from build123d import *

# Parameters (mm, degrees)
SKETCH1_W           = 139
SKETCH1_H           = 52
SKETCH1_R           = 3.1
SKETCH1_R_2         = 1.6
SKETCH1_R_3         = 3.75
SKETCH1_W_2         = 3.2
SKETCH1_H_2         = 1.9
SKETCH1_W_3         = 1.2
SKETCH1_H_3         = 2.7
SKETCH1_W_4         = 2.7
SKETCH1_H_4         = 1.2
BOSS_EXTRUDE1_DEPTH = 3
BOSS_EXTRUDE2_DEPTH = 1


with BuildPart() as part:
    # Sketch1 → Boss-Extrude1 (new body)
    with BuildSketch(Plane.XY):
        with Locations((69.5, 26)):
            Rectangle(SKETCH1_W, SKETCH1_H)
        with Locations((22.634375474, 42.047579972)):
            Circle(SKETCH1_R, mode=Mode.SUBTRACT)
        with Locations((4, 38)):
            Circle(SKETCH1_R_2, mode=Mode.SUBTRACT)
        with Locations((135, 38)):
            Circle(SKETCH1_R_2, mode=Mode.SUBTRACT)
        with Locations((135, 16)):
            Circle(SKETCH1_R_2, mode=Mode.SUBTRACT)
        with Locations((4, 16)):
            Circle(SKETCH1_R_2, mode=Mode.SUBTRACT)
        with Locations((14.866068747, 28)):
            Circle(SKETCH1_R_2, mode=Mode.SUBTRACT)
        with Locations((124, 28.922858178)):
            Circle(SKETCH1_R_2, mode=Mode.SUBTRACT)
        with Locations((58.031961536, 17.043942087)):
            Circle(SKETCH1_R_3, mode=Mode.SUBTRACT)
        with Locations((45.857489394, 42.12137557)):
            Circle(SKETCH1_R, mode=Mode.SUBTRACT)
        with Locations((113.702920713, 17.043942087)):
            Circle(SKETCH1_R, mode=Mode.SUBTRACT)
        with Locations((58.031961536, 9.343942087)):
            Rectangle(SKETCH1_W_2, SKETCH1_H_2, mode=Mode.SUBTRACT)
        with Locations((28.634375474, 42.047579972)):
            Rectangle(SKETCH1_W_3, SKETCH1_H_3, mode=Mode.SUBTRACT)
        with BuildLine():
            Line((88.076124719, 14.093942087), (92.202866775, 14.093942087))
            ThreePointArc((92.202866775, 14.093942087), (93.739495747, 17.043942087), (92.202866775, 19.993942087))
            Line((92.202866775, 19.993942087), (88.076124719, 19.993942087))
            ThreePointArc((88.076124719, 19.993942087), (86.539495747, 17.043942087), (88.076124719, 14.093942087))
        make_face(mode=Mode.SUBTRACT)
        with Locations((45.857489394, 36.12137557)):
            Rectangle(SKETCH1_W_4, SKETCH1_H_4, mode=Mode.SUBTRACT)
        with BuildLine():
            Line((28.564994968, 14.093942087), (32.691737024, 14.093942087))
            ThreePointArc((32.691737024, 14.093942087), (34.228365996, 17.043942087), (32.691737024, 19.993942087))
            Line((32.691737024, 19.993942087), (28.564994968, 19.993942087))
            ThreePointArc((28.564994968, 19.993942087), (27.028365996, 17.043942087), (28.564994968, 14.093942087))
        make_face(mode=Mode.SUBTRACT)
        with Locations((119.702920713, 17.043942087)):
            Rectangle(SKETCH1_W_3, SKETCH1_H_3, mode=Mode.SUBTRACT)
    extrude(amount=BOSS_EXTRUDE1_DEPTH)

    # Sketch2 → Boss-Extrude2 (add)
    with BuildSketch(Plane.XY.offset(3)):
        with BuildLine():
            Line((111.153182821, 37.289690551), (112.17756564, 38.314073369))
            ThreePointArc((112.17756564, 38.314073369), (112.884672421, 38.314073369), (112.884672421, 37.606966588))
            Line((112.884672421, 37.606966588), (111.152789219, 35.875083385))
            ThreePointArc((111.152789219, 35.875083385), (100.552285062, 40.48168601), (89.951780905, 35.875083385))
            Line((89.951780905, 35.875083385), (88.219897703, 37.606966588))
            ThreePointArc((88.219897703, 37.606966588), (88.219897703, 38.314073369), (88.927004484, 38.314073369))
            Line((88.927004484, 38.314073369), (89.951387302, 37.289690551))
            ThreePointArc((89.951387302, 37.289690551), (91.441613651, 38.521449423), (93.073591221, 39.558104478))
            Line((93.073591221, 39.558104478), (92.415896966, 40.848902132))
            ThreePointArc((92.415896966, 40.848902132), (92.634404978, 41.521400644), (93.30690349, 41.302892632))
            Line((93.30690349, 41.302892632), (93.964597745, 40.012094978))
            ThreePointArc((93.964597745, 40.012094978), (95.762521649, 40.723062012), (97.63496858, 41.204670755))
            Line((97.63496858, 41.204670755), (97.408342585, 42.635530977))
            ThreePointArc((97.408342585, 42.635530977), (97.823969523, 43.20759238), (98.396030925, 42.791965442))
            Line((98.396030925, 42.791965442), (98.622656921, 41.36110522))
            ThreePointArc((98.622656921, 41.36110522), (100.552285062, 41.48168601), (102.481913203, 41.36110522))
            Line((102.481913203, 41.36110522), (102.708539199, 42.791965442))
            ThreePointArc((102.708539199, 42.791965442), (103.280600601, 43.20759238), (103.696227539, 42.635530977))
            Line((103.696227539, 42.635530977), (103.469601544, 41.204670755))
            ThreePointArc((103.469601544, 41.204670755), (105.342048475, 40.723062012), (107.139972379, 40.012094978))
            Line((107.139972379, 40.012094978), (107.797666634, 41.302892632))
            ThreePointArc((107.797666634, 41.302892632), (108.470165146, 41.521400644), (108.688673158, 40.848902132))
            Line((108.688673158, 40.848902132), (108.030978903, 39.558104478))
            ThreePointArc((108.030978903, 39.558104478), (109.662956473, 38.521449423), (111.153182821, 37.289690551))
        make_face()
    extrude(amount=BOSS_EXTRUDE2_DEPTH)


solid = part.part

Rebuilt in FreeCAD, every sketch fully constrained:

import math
import FreeCAD as App
import Part
import Sketcher
Q = App.Units.Quantity


def add_polygon(sketch, points):
    """Adds a closed chain of lines whose ends are joined by coincident constraints."""
    first, n = sketch.GeometryCount, len(points)
    for a, b in zip(points, points[1:] + points[:1]):
        sketch.addGeometry(Part.LineSegment(App.Vector(*a, 0), App.Vector(*b, 0)), False)
    for i in range(n):
        sketch.addConstraint(Sketcher.Constraint("Coincident", first + i, 2, first + (i + 1) % n, 1))

doc = App.newDocument("Part")
body = doc.addObject("PartDesign::Body", "Body")

sketch1 = doc.addObject("Sketcher::SketchObject", "Sketch")
body.addObject(sketch1)
sketch1.AttachmentSupport = (doc.XY_Plane, [""])
sketch1.MapMode = "FlatFace"
add_polygon(sketch1, [(0, 52), (0, 0), (139, 0), (139, 52)])
sketch1.addGeometry(Part.Circle(App.Vector(4, 16, 0), App.Vector(0, 0, 1), 1.6), False)
sketch1.addGeometry(Part.LineSegment(App.Vector(32.7, 14.1, 0), App.Vector(28.6, 14.1, 0)), False)
sketch1.addGeometry(Part.ArcOfCircle(Part.Circle(App.Vector(30.6, 17, 0), App.Vector(0, 0, 1), 3.6), math.radians(125), math.radians(235)), False)
sketch1.addGeometry(Part.LineSegment(App.Vector(28.6, 20, 0), App.Vector(32.7, 20, 0)), False)
sketch1.addGeometry(Part.ArcOfCircle(Part.Circle(App.Vector(30.6, 17, 0), App.Vector(0, 0, 1), 3.6), math.radians(-55), math.radians(55)), False)
add_polygon(sketch1, [(59.6, 8.4), (56.4, 8.4), (56.4, 10.3), (59.6, 10.3)])
sketch1.addGeometry(Part.Circle(App.Vector(58, 17, 0), App.Vector(0, 0, 1), 3.8), False)
sketch1.addGeometry(Part.LineSegment(App.Vector(92.2, 14.1, 0), App.Vector(88.1, 14.1, 0)), False)
sketch1.addGeometry(Part.ArcOfCircle(Part.Circle(App.Vector(90.1, 17, 0), App.Vector(0, 0, 1), 3.6), math.radians(125), math.radians(235)), False)
sketch1.addGeometry(Part.LineSegment(App.Vector(88.1, 20, 0), App.Vector(92.2, 20, 0)), False)
sketch1.addGeometry(Part.ArcOfCircle(Part.Circle(App.Vector(90.1, 17, 0), App.Vector(0, 0, 1), 3.6), math.radians(-55), math.radians(55)), False)
sketch1.addGeometry(Part.Circle(App.Vector(113.7, 17, 0), App.Vector(0, 0, 1), 3.1), False)
add_polygon(sketch1, [(120.3, 15.7), (119.1, 15.7), (119.1, 18.4), (120.3, 18.4)])
sketch1.addGeometry(Part.Circle(App.Vector(135, 16, 0), App.Vector(0, 0, 1), 1.6), False)
sketch1.addGeometry(Part.Circle(App.Vector(14.9, 28, 0), App.Vector(0, 0, 1), 1.6), False)
sketch1.addGeometry(Part.Circle(App.Vector(4, 38, 0), App.Vector(0, 0, 1), 1.6), False)
sketch1.addGeometry(Part.Circle(App.Vector(22.6, 42, 0), App.Vector(0, 0, 1), 3.1), False)
add_polygon(sketch1, [(29.2, 40.7), (28, 40.7), (28, 43.4), (29.2, 43.4)])
add_polygon(sketch1, [(47.2, 35.5), (44.5, 35.5), (44.5, 36.7), (47.2, 36.7)])
sketch1.addGeometry(Part.Circle(App.Vector(45.9, 42.1, 0), App.Vector(0, 0, 1), 3.1), False)
sketch1.addGeometry(Part.Circle(App.Vector(124, 28.9, 0), App.Vector(0, 0, 1), 1.6), False)
sketch1.addGeometry(Part.Circle(App.Vector(135, 38, 0), App.Vector(0, 0, 1), 1.6), False)
sketch1.addConstraint(Sketcher.Constraint("Coincident", 5, 2, 6, 2))
sketch1.addConstraint(Sketcher.Constraint("Coincident", 6, 1, 7, 1))
sketch1.addConstraint(Sketcher.Constraint("Coincident", 7, 2, 8, 2))
sketch1.addConstraint(Sketcher.Constraint("Coincident", 8, 1, 5, 1))
sketch1.addConstraint(Sketcher.Constraint("Coincident", 14, 2, 15, 2))
sketch1.addConstraint(Sketcher.Constraint("Coincident", 15, 1, 16, 1))
sketch1.addConstraint(Sketcher.Constraint("Coincident", 16, 2, 17, 2))
sketch1.addConstraint(Sketcher.Constraint("Coincident", 17, 1, 14, 1))
sketch1.addConstraint(Sketcher.Constraint("Vertical", 0))
sketch1.addConstraint(Sketcher.Constraint("Horizontal", 1))
sketch1.addConstraint(Sketcher.Constraint("Vertical", 2))
sketch1.addConstraint(Sketcher.Constraint("Horizontal", 3))
sketch1.addConstraint(Sketcher.Constraint("Horizontal", 5))
sketch1.addConstraint(Sketcher.Constraint("Horizontal", 7))
sketch1.addConstraint(Sketcher.Constraint("Horizontal", 9))
sketch1.addConstraint(Sketcher.Constraint("Vertical", 10))
sketch1.addConstraint(Sketcher.Constraint("Horizontal", 11))
sketch1.addConstraint(Sketcher.Constraint("Vertical", 12))
sketch1.addConstraint(Sketcher.Constraint("Horizontal", 14))
sketch1.addConstraint(Sketcher.Constraint("Horizontal", 16))
sketch1.addConstraint(Sketcher.Constraint("Horizontal", 19))
sketch1.addConstraint(Sketcher.Constraint("Vertical", 20))
sketch1.addConstraint(Sketcher.Constraint("Horizontal", 21))
sketch1.addConstraint(Sketcher.Constraint("Vertical", 22))
sketch1.addConstraint(Sketcher.Constraint("Horizontal", 27))
sketch1.addConstraint(Sketcher.Constraint("Vertical", 28))
sketch1.addConstraint(Sketcher.Constraint("Horizontal", 29))
sketch1.addConstraint(Sketcher.Constraint("Vertical", 30))
sketch1.addConstraint(Sketcher.Constraint("Horizontal", 31))
sketch1.addConstraint(Sketcher.Constraint("Vertical", 32))
sketch1.addConstraint(Sketcher.Constraint("Horizontal", 33))
sketch1.addConstraint(Sketcher.Constraint("Vertical", 34))
sketch1.addConstraint(Sketcher.Constraint("Coincident", 0, 2, -1, 1))
sketch1.addConstraint(Sketcher.Constraint("Coincident", 8, 3, 6, 3))
sketch1.addConstraint(Sketcher.Constraint("Coincident", 17, 3, 15, 3))
sketch1.addConstraint(Sketcher.Constraint("Equal", 6, 8))
sketch1.addConstraint(Sketcher.Constraint("Equal", 8, 15))
sketch1.addConstraint(Sketcher.Constraint("Equal", 15, 17))
sketch1.addConstraint(Sketcher.Constraint("Equal", 4, 23))
sketch1.addConstraint(Sketcher.Constraint("Equal", 23, 24))
sketch1.addConstraint(Sketcher.Constraint("Equal", 24, 25))
sketch1.addConstraint(Sketcher.Constraint("Equal", 18, 26))
sketch1.addConstraint(Sketcher.Constraint("Equal", 26, 35))
sketch1.addConstraint(Sketcher.Constraint("Equal", 25, 36))
sketch1.addConstraint(Sketcher.Constraint("Equal", 36, 37))
sketch1.addConstraint(Sketcher.Constraint("Horizontal", 8, 3, 13, 3))
sketch1.addConstraint(Sketcher.Constraint("Horizontal", 13, 3, 15, 3))
sketch1.addConstraint(Sketcher.Constraint("Horizontal", 17, 3, 18, 3))
sketch1.addConstraint(Sketcher.Constraint("Horizontal", 4, 3, 23, 3))
sketch1.addConstraint(Sketcher.Constraint("Horizontal", 25, 3, 37, 3))
sketch1.addConstraint(Sketcher.Constraint("Horizontal", 8, 1, 14, 2))
sketch1.addConstraint(Sketcher.Constraint("Horizontal", 7, 2, 15, 1))
sketch1.addConstraint(Sketcher.Constraint("Vertical", 4, 3, 25, 3))
sketch1.addConstraint(Sketcher.Constraint("Vertical", 23, 3, 37, 3))
sketch1.addConstraint(Sketcher.Constraint("Vertical", 5, 2, 6, 1))
sketch1.addConstraint(Sketcher.Constraint("Equal", 21, 27))
sketch1.addConstraint(Sketcher.Constraint("Equal", 33, 20))
sketch1.addConstraint(Sketcher.Constraint("Equal", 22, 28))
sketch1.addConstraint(Sketcher.Constraint("Equal", 29, 32))
sketch1.addConstraint(Sketcher.Constraint("Diameter", 4, Q("3.2 mm")))
sketch1.addConstraint(Sketcher.Constraint("Diameter", 13, Q("7.5 mm")))
sketch1.addConstraint(Sketcher.Constraint("Diameter", 18, Q("6.2 mm")))
sketch1.addConstraint(Sketcher.Constraint("Radius", 6, Q("3.6 mm")))
sketch1.addConstraint(Sketcher.Constraint("DistanceX", 1, 1, 1, 2, Q("139 mm")))
sketch1.addConstraint(Sketcher.Constraint("DistanceY", 0, 2, 0, 1, Q("52 mm")))
sketch1.addConstraint(Sketcher.Constraint("DistanceX", 9, 2, 9, 1, Q("3.2 mm")))
sketch1.addConstraint(Sketcher.Constraint("DistanceX", 19, 2, 19, 1, Q("1.2 mm")))
sketch1.addConstraint(Sketcher.Constraint("DistanceX", 31, 2, 31, 1, Q("2.7 mm")))
sketch1.addConstraint(Sketcher.Constraint("DistanceY", 10, 1, 10, 2, Q("1.9 mm")))
sketch1.addConstraint(Sketcher.Constraint("DistanceX", -1, 1, 4, 3, Q("4 mm")))
sketch1.addConstraint(Sketcher.Constraint("DistanceY", -1, 1, 4, 3, Q("16 mm")))
sketch1.addConstraint(Sketcher.Constraint("DistanceX", -1, 1, 23, 3, Q("135 mm")))
sketch1.addConstraint(Sketcher.Constraint("DistanceY", -1, 1, 24, 3, Q("28 mm")))
sketch1.addConstraint(Sketcher.Constraint("DistanceY", -1, 1, 25, 3, Q("38 mm")))
sketch1.addConstraint(Sketcher.Constraint("DistanceX", -1, 1, 36, 3, Q("124 mm")))
sketch1.addConstraint(Sketcher.Constraint("DistanceY", 5, 2, 6, 1, Q("5.9 mm")))
sketch1.addConstraint(Sketcher.Constraint("DistanceX", 9, 2, 13, 3, Q("1.6 mm")))
sketch1.addConstraint(Sketcher.Constraint("DistanceY", 9, 2, 8, 1, Q("5.7 mm")))
sketch1.addConstraint(Sketcher.Constraint("DistanceX", 18, 3, 19, 2, Q("5.4 mm")))
sketch1.addConstraint(Sketcher.Constraint("DistanceY", 17, 1, 19, 2, Q("1.6 mm")))
sketch1.addConstraint(Sketcher.Constraint("DistanceX", 26, 3, 27, 2, Q("5.4 mm")))
sketch1.addConstraint(Sketcher.Constraint("DistanceY", 31, 2, 35, 3, Q("6.6 mm")))
sketch1.addConstraint(Sketcher.Constraint("DistanceY", 27, 2, 26, 3, Q("1.35 mm")))
sketch1.addConstraint(Sketcher.Constraint("DistanceX", 31, 2, 35, 3, Q("1.35 mm")))
sketch1.addConstraint(Sketcher.Constraint("DistanceX", -1, 1, 13, 3, Q("58.031962 mm")))
sketch1.addConstraint(Sketcher.Constraint("DistanceX", -1, 1, 18, 3, Q("113.702921 mm")))
sketch1.addConstraint(Sketcher.Constraint("DistanceX", -1, 1, 24, 3, Q("14.866069 mm")))
sketch1.addConstraint(Sketcher.Constraint("DistanceY", -1, 1, 26, 3, Q("42.04758 mm")))
sketch1.addConstraint(Sketcher.Constraint("DistanceX", -1, 1, 35, 3, Q("45.857489 mm")))
sketch1.addConstraint(Sketcher.Constraint("DistanceY", -1, 1, 36, 3, Q("28.922858 mm")))
sketch1.addConstraint(Sketcher.Constraint("DistanceX", 6, 3, 15, 3, Q("59.51113 mm")))
sketch1.addConstraint(Sketcher.Constraint("DistanceX", 26, 3, 6, 3, Q("7.993991 mm")))
sketch1.addConstraint(Sketcher.Constraint("DistanceX", 24, 3, 7, 2, Q("17.825668 mm")))
sketch1.addConstraint(Sketcher.Constraint("DistanceY", -1, 1, 6, 3, Q("17.043942 mm")))
sketch1.addConstraint(Sketcher.Constraint("DistanceY", -1, 1, 35, 3, Q("42.121376 mm")))
pad1 = doc.addObject("PartDesign::Pad", "Pad")
body.addObject(pad1)
pad1.Profile = sketch1
pad1.Length = 3

sketch2 = doc.addObject("Sketcher::SketchObject", "Sketch001")
body.addObject(sketch2)
sketch2.AttachmentSupport = (doc.XY_Plane, [""])
sketch2.MapMode = "FlatFace"
sketch2.AttachmentOffset = App.Placement(App.Vector(0, 0, 3), App.Rotation())
sketch2.addGeometry(Part.LineSegment(App.Vector(112.2, 38.3, 0), App.Vector(111.2, 37.3, 0)), False)
sketch2.addGeometry(Part.ArcOfCircle(Part.Circle(App.Vector(100.6, 26, 0), App.Vector(0, 0, 1), 15.5), math.radians(46.85), math.radians(61.15)), False)
sketch2.addGeometry(Part.LineSegment(App.Vector(108, 39.6, 0), App.Vector(108.7, 40.8, 0)), False)
sketch2.addGeometry(Part.ArcOfCircle(Part.Circle(App.Vector(108.2, 41.1, 0), App.Vector(0, 0, 1), 0.5), math.radians(-27), math.radians(153)), False)
sketch2.addGeometry(Part.LineSegment(App.Vector(107.8, 41.3, 0), App.Vector(107.1, 40, 0)), False)
sketch2.addGeometry(Part.ArcOfCircle(Part.Circle(App.Vector(100.6, 26, 0), App.Vector(0, 0, 1), 15.5), math.radians(64.85), math.radians(79.15)), False)
sketch2.addGeometry(Part.LineSegment(App.Vector(103.5, 41.2, 0), App.Vector(103.7, 42.6, 0)), False)
sketch2.addGeometry(Part.ArcOfCircle(Part.Circle(App.Vector(103.2, 42.7, 0), App.Vector(0, 0, 1), 0.5), math.radians(-9), math.radians(171)), False)
sketch2.addGeometry(Part.LineSegment(App.Vector(102.7, 42.8, 0), App.Vector(102.5, 41.4, 0)), False)
sketch2.addGeometry(Part.ArcOfCircle(Part.Circle(App.Vector(100.6, 26, 0), App.Vector(0, 0, 1), 15.5), math.radians(82.85), math.radians(97.15)), False)
sketch2.addGeometry(Part.LineSegment(App.Vector(98.6, 41.4, 0), App.Vector(98.4, 42.8, 0)), False)
sketch2.addGeometry(Part.ArcOfCircle(Part.Circle(App.Vector(97.9, 42.7, 0), App.Vector(0, 0, 1), 0.5), math.radians(9), math.radians(189)), False)
sketch2.addGeometry(Part.LineSegment(App.Vector(97.4, 42.6, 0), App.Vector(97.6, 41.2, 0)), False)
sketch2.addGeometry(Part.ArcOfCircle(Part.Circle(App.Vector(100.6, 26, 0), App.Vector(0, 0, 1), 15.5), math.radians(100.85), math.radians(115.15)), False)
sketch2.addGeometry(Part.LineSegment(App.Vector(94, 40, 0), App.Vector(93.3, 41.3, 0)), False)
sketch2.addGeometry(Part.ArcOfCircle(Part.Circle(App.Vector(92.9, 41.1, 0), App.Vector(0, 0, 1), 0.5), math.radians(27), math.radians(207)), False)
sketch2.addGeometry(Part.LineSegment(App.Vector(92.4, 40.8, 0), App.Vector(93.1, 39.6, 0)), False)
sketch2.addGeometry(Part.ArcOfCircle(Part.Circle(App.Vector(100.6, 26, 0), App.Vector(0, 0, 1), 15.5), math.radians(118.85), math.radians(133.15)), False)
sketch2.addGeometry(Part.LineSegment(App.Vector(90, 37.3, 0), App.Vector(88.9, 38.3, 0)), False)
sketch2.addGeometry(Part.ArcOfCircle(Part.Circle(App.Vector(88.6, 38, 0), App.Vector(0, 0, 1), 0.5), math.radians(45), math.radians(225)), False)
sketch2.addGeometry(Part.LineSegment(App.Vector(88.2, 37.6, 0), App.Vector(90, 35.9, 0)), False)
sketch2.addGeometry(Part.ArcOfCircle(Part.Circle(App.Vector(100.6, 26, 0), App.Vector(0, 0, 1), 14.5), math.radians(43), math.radians(137)), False)
sketch2.addGeometry(Part.LineSegment(App.Vector(111.2, 35.9, 0), App.Vector(112.9, 37.6, 0)), False)
sketch2.addGeometry(Part.ArcOfCircle(Part.Circle(App.Vector(112.5, 38, 0), App.Vector(0, 0, 1), 0.5), math.radians(-45), math.radians(135)), False)
sketch2.addConstraint(Sketcher.Constraint("Coincident", 0, 2, 1, 1))
sketch2.addConstraint(Sketcher.Constraint("Coincident", 1, 2, 2, 1))
sketch2.addConstraint(Sketcher.Constraint("Tangent", 2, 2, 3, 1))
sketch2.addConstraint(Sketcher.Constraint("Tangent", 3, 2, 4, 1))
sketch2.addConstraint(Sketcher.Constraint("Coincident", 4, 2, 5, 1))
sketch2.addConstraint(Sketcher.Constraint("Coincident", 5, 2, 6, 1))
sketch2.addConstraint(Sketcher.Constraint("Tangent", 6, 2, 7, 1))
sketch2.addConstraint(Sketcher.Constraint("Tangent", 7, 2, 8, 1))
sketch2.addConstraint(Sketcher.Constraint("Coincident", 8, 2, 9, 1))
sketch2.addConstraint(Sketcher.Constraint("Coincident", 9, 2, 10, 1))
sketch2.addConstraint(Sketcher.Constraint("Tangent", 10, 2, 11, 1))
sketch2.addConstraint(Sketcher.Constraint("Tangent", 11, 2, 12, 1))
sketch2.addConstraint(Sketcher.Constraint("Coincident", 12, 2, 13, 1))
sketch2.addConstraint(Sketcher.Constraint("Coincident", 13, 2, 14, 1))
sketch2.addConstraint(Sketcher.Constraint("Tangent", 14, 2, 15, 1))
sketch2.addConstraint(Sketcher.Constraint("Tangent", 15, 2, 16, 1))
sketch2.addConstraint(Sketcher.Constraint("Coincident", 16, 2, 17, 1))
sketch2.addConstraint(Sketcher.Constraint("Coincident", 17, 2, 18, 1))
sketch2.addConstraint(Sketcher.Constraint("Tangent", 18, 2, 19, 1))
sketch2.addConstraint(Sketcher.Constraint("Tangent", 19, 2, 20, 1))
sketch2.addConstraint(Sketcher.Constraint("Coincident", 20, 2, 21, 2))
sketch2.addConstraint(Sketcher.Constraint("Coincident", 21, 1, 22, 1))
sketch2.addConstraint(Sketcher.Constraint("Tangent", 22, 2, 23, 1))
sketch2.addConstraint(Sketcher.Constraint("Tangent", 23, 2, 0, 1))
sketch2.addConstraint(Sketcher.Constraint("Coincident", 5, 3, 1, 3))
sketch2.addConstraint(Sketcher.Constraint("Coincident", 9, 3, 1, 3))
sketch2.addConstraint(Sketcher.Constraint("Coincident", 13, 3, 1, 3))
sketch2.addConstraint(Sketcher.Constraint("Coincident", 17, 3, 1, 3))
sketch2.addConstraint(Sketcher.Constraint("Coincident", 21, 3, 1, 3))
sketch2.addConstraint(Sketcher.Constraint("Equal", 1, 5))
sketch2.addConstraint(Sketcher.Constraint("Equal", 3, 7))
sketch2.addConstraint(Sketcher.Constraint("Equal", 5, 9))
sketch2.addConstraint(Sketcher.Constraint("Equal", 7, 11))
sketch2.addConstraint(Sketcher.Constraint("Equal", 9, 13))
sketch2.addConstraint(Sketcher.Constraint("Equal", 11, 15))
sketch2.addConstraint(Sketcher.Constraint("Equal", 13, 17))
sketch2.addConstraint(Sketcher.Constraint("Equal", 15, 19))
sketch2.addConstraint(Sketcher.Constraint("Equal", 19, 23))
sketch2.addConstraint(Sketcher.Constraint("Parallel", 2, 4))
sketch2.addConstraint(Sketcher.Constraint("Parallel", 6, 8))
sketch2.addConstraint(Sketcher.Constraint("Parallel", 10, 12))
sketch2.addConstraint(Sketcher.Constraint("Parallel", 14, 16))
sketch2.addConstraint(Sketcher.Constraint("Perpendicular", 0, 18))
sketch2.addConstraint(Sketcher.Constraint("Parallel", 18, 20))
sketch2.addConstraint(Sketcher.Constraint("Perpendicular", 20, 22))
sketch2.addConstraint(Sketcher.Constraint("Horizontal", 7, 3, 11, 3))
sketch2.addConstraint(Sketcher.Constraint("Horizontal", 3, 3, 15, 3))
sketch2.addConstraint(Sketcher.Constraint("Horizontal", 19, 3, 23, 3))
sketch2.addConstraint(Sketcher.Constraint("Horizontal", 8, 2, 9, 2))
sketch2.addConstraint(Sketcher.Constraint("Horizontal", 7, 2, 10, 2))
sketch2.addConstraint(Sketcher.Constraint("Horizontal", 4, 2, 13, 2))
sketch2.addConstraint(Sketcher.Constraint("Horizontal", 3, 2, 14, 2))
sketch2.addConstraint(Sketcher.Constraint("Horizontal", 0, 2, 17, 2))
sketch2.addConstraint(Sketcher.Constraint("Horizontal", 20, 2, 21, 1))
sketch2.addConstraint(Sketcher.Constraint("Equal", 0, 2))
sketch2.addConstraint(Sketcher.Constraint("Equal", 2, 4))
sketch2.addConstraint(Sketcher.Constraint("Equal", 4, 6))
sketch2.addConstraint(Sketcher.Constraint("Equal", 6, 8))
sketch2.addConstraint(Sketcher.Constraint("Radius", 1, Q("15.5 mm")))
sketch2.addConstraint(Sketcher.Constraint("Radius", 3, Q("0.5 mm")))
sketch2.addConstraint(Sketcher.Constraint("Radius", 21, Q("14.5 mm")))
sketch2.addConstraint(Sketcher.Constraint("Angle", 2, Q("63 deg")))
sketch2.addConstraint(Sketcher.Constraint("Angle", 6, Q("81 deg")))
sketch2.addConstraint(Sketcher.Constraint("DistanceX", 19, 2, 15, 2, Q("4.195999 mm")))
sketch2.addConstraint(Sketcher.Constraint("DistanceX", -1, 1, 15, 3, Q("92.8614 mm")))
sketch2.addConstraint(Sketcher.Constraint("DistanceX", -1, 1, 5, 2, Q("103.469602 mm")))
sketch2.addConstraint(Sketcher.Constraint("DistanceY", -1, 1, 7, 3, Q("42.713748 mm")))
pad2 = doc.addObject("PartDesign::Pad", "Pad001")
body.addObject(pad2)
pad2.Profile = sketch2
pad2.Length = 1

doc.recompute()
